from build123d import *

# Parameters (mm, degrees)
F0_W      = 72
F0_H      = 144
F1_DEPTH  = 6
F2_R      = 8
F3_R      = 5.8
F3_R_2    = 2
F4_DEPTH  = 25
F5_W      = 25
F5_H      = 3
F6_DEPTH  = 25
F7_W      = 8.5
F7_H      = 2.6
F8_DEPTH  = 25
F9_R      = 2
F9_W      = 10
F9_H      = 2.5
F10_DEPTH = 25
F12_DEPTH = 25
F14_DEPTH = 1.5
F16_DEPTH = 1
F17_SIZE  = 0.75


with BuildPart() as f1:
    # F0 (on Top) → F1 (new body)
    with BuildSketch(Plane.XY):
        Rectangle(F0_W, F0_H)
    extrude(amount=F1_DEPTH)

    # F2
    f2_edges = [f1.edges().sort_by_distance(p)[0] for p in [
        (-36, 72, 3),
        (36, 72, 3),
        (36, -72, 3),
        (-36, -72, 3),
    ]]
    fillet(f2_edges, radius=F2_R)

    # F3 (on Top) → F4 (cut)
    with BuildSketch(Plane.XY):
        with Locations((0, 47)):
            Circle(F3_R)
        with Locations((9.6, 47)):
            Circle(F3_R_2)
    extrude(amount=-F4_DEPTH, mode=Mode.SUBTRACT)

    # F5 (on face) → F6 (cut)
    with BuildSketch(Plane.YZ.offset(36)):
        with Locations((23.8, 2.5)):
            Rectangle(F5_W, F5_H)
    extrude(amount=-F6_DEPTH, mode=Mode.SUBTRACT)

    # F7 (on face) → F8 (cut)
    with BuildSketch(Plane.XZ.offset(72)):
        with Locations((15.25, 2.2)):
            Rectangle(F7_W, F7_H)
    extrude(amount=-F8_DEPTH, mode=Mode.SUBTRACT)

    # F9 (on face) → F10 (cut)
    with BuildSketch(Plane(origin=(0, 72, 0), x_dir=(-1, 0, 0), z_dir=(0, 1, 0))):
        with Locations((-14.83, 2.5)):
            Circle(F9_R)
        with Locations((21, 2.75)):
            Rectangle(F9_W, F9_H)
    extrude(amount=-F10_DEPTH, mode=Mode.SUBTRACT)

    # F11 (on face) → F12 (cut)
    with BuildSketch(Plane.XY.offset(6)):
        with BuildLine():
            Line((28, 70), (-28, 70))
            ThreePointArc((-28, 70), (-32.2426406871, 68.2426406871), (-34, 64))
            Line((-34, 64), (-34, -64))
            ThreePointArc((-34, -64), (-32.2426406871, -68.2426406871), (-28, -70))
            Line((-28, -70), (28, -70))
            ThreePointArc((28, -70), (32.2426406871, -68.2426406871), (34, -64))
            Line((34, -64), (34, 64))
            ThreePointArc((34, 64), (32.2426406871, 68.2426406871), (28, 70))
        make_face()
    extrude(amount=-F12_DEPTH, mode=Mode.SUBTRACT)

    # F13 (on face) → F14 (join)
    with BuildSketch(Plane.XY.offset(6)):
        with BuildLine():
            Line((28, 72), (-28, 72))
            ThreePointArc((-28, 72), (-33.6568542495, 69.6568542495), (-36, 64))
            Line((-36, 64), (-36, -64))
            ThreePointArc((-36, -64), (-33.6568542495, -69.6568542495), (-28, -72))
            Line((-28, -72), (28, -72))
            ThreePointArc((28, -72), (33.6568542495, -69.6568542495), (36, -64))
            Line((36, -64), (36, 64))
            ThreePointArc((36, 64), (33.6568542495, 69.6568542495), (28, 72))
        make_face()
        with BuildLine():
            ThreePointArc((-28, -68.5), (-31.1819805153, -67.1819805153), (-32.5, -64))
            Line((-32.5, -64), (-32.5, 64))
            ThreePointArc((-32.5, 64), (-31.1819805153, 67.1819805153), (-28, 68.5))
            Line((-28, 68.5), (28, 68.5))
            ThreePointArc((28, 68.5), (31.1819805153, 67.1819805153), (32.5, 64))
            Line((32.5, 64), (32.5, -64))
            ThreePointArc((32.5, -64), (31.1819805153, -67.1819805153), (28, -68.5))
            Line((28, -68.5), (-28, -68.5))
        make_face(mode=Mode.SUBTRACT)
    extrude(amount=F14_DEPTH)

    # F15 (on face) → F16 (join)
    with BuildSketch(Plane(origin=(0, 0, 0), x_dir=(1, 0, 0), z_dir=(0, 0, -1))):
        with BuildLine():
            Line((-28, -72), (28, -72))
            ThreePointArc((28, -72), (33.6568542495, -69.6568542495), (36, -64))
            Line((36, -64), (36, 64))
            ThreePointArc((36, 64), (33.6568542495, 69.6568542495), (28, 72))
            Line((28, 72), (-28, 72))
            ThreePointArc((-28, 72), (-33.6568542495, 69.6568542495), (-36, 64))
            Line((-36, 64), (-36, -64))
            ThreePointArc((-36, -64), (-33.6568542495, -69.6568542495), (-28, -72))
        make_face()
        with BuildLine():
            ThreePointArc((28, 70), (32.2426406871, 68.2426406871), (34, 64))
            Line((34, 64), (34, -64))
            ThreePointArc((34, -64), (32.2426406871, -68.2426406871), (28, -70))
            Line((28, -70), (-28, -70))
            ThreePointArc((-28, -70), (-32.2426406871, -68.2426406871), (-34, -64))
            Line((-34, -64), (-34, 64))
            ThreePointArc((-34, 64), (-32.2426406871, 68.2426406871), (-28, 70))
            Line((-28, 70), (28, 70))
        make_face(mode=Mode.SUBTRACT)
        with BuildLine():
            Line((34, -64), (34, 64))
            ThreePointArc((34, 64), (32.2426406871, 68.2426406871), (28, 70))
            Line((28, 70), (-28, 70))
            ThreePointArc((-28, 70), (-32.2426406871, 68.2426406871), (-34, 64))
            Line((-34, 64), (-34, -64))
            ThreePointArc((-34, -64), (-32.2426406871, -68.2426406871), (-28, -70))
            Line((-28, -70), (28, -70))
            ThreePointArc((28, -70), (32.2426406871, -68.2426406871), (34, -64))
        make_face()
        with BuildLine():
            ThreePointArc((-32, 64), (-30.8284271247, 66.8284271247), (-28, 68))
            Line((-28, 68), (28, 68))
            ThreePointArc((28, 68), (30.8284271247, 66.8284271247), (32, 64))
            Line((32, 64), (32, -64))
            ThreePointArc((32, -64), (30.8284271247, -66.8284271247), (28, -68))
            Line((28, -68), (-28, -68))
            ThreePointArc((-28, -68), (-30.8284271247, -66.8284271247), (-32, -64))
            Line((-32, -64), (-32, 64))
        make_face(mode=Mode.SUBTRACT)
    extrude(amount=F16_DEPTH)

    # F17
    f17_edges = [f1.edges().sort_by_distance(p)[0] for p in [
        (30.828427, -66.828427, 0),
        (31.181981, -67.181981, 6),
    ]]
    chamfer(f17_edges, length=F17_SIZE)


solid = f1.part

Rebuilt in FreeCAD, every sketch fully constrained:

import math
import FreeCAD as App
import Part
import Sketcher

V = App.Vector
Q = App.Units.Quantity


def edges_at(feature, points):
    """Names of the edges that pass closest to the given points."""
    edges = feature.Shape.Edges
    near = lambda p: min(range(len(edges)), key=lambda i: edges[i].distToShape(Part.Vertex(*p))[0])
    return sorted({f"Edge{near(p) + 1}" for p in points})


def add_polygon(sketch, points):
    """Adds a closed chain of lines whose ends are joined by coincident constraints."""
    first, n = sketch.GeometryCount, len(points)
    for a, b in zip(points, points[1:] + points[:1]):
        sketch.addGeometry(Part.LineSegment(App.Vector(*a, 0), App.Vector(*b, 0)), False)
    for i in range(n):
        sketch.addConstraint(Sketcher.Constraint("Coincident", first + i, 2, first + (i + 1) % n, 1))

doc = App.newDocument("Part")
body = doc.addObject("PartDesign::Body", "Body")

sketch1 = body.newObject("Sketcher::SketchObject", "Sketch")
sketch1.AttachmentSupport = (doc.getObject("XY_Plane"), [""])
sketch1.MapMode = "FlatFace"
add_polygon(sketch1, [(-36, 72), (-36, -72), (36, -72), (36, 72)])
sketch1.addConstraint(Sketcher.Constraint("Vertical", 0))
sketch1.addConstraint(Sketcher.Constraint("Horizontal", 1))
sketch1.addConstraint(Sketcher.Constraint("Vertical", 2))
sketch1.addConstraint(Sketcher.Constraint("Horizontal", 3))
sketch1.addConstraint(Sketcher.Constraint("Symmetric", 0, 2, 2, 2, -1, 1))
sketch1.addConstraint(Sketcher.Constraint("DistanceX", 1, 1, 1, 2, Q("72 mm")))
sketch1.addConstraint(Sketcher.Constraint("DistanceY", 0, 2, 0, 1, Q("144 mm")))
pad1 = body.newObject("PartDesign::Pad", "Pad")
pad1.Profile = sketch1
pad1.Length = 6
doc.recompute()

fillet = body.newObject("PartDesign::Fillet", "Fillet")
fillet.Base = (pad1, edges_at(pad1, [
    (-36, 72, 3),
    (36, 72, 3),
    (36, -72, 3),
    (-36, -72, 3),
]))
fillet.Radius = 8

sketch2 = body.newObject("Sketcher::SketchObject", "Sketch001")
sketch2.AttachmentSupport = (doc.getObject("XY_Plane"), [""])
sketch2.MapMode = "FlatFace"
sketch2.addGeometry(Part.Circle(V(0, 47, 0), V(0, 0, 1), 5.8), False)
sketch2.addGeometry(Part.Circle(V(9.6, 47, 0), V(0, 0, 1), 2), False)
sketch2.addConstraint(Sketcher.Constraint("PointOnObject", 0, 3, -2))
sketch2.addConstraint(Sketcher.Constraint("Horizontal", 0, 3, 1, 3))
sketch2.addConstraint(Sketcher.Constraint("Diameter", 1, Q("4 mm")))
sketch2.addConstraint(Sketcher.Constraint("Diameter", 0, Q("11.6 mm")))
sketch2.addConstraint(Sketcher.Constraint("DistanceY", -1, 1, 0, 3, Q("47 mm")))
sketch2.addConstraint(Sketcher.Constraint("DistanceX", -1, 1, 1, 3, Q("9.6 mm")))
pocket1 = body.newObject("PartDesign::Pocket", "Pocket")
pocket1.Profile = sketch2
pocket1.Length = 25

sketch3 = body.newObject("Sketcher::SketchObject", "Sketch002")
sketch3.AttachmentSupport = (doc.getObject("YZ_Plane"), [""])
sketch3.MapMode = "FlatFace"
sketch3.AttachmentOffset = App.Placement(V(0, 0, 36), App.Rotation())
add_polygon(sketch3, [(11.3, 4), (11.3, 1), (36.3, 1), (36.3, 4)])
sketch3.addConstraint(Sketcher.Constraint("Vertical", 0))
sketch3.addConstraint(Sketcher.Constraint("Horizontal", 1))
sketch3.addConstraint(Sketcher.Constraint("Vertical", 2))
sketch3.addConstraint(Sketcher.Constraint("Horizontal", 3))
sketch3.addConstraint(Sketcher.Constraint("DistanceX", 1, 1, 1, 2, Q("25 mm")))
sketch3.addConstraint(Sketcher.Constraint("DistanceY", 0, 2, 0, 1, Q("3 mm")))
sketch3.addConstraint(Sketcher.Constraint("DistanceY", -1, 1, 0, 2, Q("1 mm")))
sketch3.addConstraint(Sketcher.Constraint("DistanceX", -1, 1, 0, 2, Q("11.3 mm")))
pocket2 = body.newObject("PartDesign::Pocket", "Pocket001")
pocket2.Profile = sketch3
pocket2.Length = 25

sketch4 = body.newObject("Sketcher::SketchObject", "Sketch003")
sketch4.AttachmentSupport = (doc.getObject("XZ_Plane"), [""])
sketch4.MapMode = "FlatFace"
sketch4.AttachmentOffset = App.Placement(V(0, 0, 72), App.Rotation())
add_polygon(sketch4, [(11, 3.5), (11, 0.9), (19.5, 0.9), (19.5, 3.5)])
sketch4.addConstraint(Sketcher.Constraint("Vertical", 0))
sketch4.addConstraint(Sketcher.Constraint("Horizontal", 1))
sketch4.addConstraint(Sketcher.Constraint("Vertical", 2))
sketch4.addConstraint(Sketcher.Constraint("Horizontal", 3))
sketch4.addConstraint(Sketcher.Constraint("DistanceX", 1, 1, 1, 2, Q("8.5 mm")))
sketch4.addConstraint(Sketcher.Constraint("DistanceY", 0, 2, 0, 1, Q("2.6 mm")))
sketch4.addConstraint(Sketcher.Constraint("DistanceX", -1, 1, 0, 2, Q("11 mm")))
sketch4.addConstraint(Sketcher.Constraint("DistanceY", -1, 1, 0, 2, Q("0.9 mm")))
pocket3 = body.newObject("PartDesign::Pocket", "Pocket002")
pocket3.Profile = sketch4
pocket3.Length = 25

sketch5 = body.newObject("Sketcher::SketchObject", "Sketch004")
sketch5.AttachmentSupport = (doc.getObject("XZ_Plane"), [""])
sketch5.MapMode = "FlatFace"
sketch5.AttachmentOffset = App.Placement(V(0, 0, -72), App.Rotation())
sketch5.addGeometry(Part.Circle(V(14.8, 2.5, 0), V(0, 0, 1), 2), False)
add_polygon(sketch5, [(-16, 4), (-16, 1.5), (-26, 1.5), (-26, 4)])
sketch5.addConstraint(Sketcher.Constraint("Vertical", 1))
sketch5.addConstraint(Sketcher.Constraint("Horizontal", 2))
sketch5.addConstraint(Sketcher.Constraint("Vertical", 3))
sketch5.addConstraint(Sketcher.Constraint("Horizontal", 4))
sketch5.addConstraint(Sketcher.Constraint("Diameter", 0, Q("4 mm")))
sketch5.addConstraint(Sketcher.Constraint("DistanceX", 2, 2, 2, 1, Q("10 mm")))
sketch5.addConstraint(Sketcher.Constraint("DistanceY", 1, 2, 1, 1, Q("2.5 mm")))
sketch5.addConstraint(Sketcher.Constraint("DistanceX", 1, 2, -1, 1, Q("16 mm")))
sketch5.addConstraint(Sketcher.Constraint("DistanceY", -1, 1, 3, 2, Q("4 mm")))
sketch5.addConstraint(Sketcher.Constraint("DistanceY", 1, 2, 0, 3, Q("1 mm")))
sketch5.addConstraint(Sketcher.Constraint("DistanceX", -1, 1, 0, 3, Q("14.83 mm")))
pocket4 = body.newObject("PartDesign::Pocket", "Pocket003")
pocket4.Profile = sketch5
pocket4.Length = 25
pocket4.Reversed = True

sketch6 = body.newObject("Sketcher::SketchObject", "Sketch005")
sketch6.AttachmentSupport = (doc.getObject("XY_Plane"), [""])
sketch6.MapMode = "FlatFace"
sketch6.AttachmentOffset = App.Placement(V(0, 0, 6), App.Rotation())
sketch6.addGeometry(Part.LineSegment(V(28, 70, 0), V(-28, 70, 0)), False)
sketch6.addGeometry(Part.ArcOfCircle(Part.Circle(V(-28, 64, 0), V(0, 0, 1), 6), math.radians(90), math.radians(180)), False)
sketch6.addGeometry(Part.LineSegment(V(-34, 64, 0), V(-34, -64, 0)), False)
sketch6.addGeometry(Part.ArcOfCircle(Part.Circle(V(-28, -64, 0), V(0, 0, 1), 6), math.radians(180), math.radians(270)), False)
sketch6.addGeometry(Part.LineSegment(V(-28, -70, 0), V(28, -70, 0)), False)
sketch6.addGeometry(Part.ArcOfCircle(Part.Circle(V(28, -64, 0), V(0, 0, 1), 6), math.radians(-90), math.radians(0)), False)
sketch6.addGeometry(Part.LineSegment(V(34, -64, 0), V(34, 64, 0)), False)
sketch6.addGeometry(Part.ArcOfCircle(Part.Circle(V(28, 64, 0), V(0, 0, 1), 6), math.radians(0), math.radians(90)), False)
sketch6.addConstraint(Sketcher.Constraint("Tangent", 0, 2, 1, 1))
sketch6.addConstraint(Sketcher.Constraint("Tangent", 1, 2, 2, 1))
sketch6.addConstraint(Sketcher.Constraint("Tangent", 2, 2, 3, 1))
sketch6.addConstraint(Sketcher.Constraint("Tangent", 3, 2, 4, 1))
sketch6.addConstraint(Sketcher.Constraint("Tangent", 4, 2, 5, 1))
sketch6.addConstraint(Sketcher.Constraint("Tangent", 5, 2, 6, 1))
sketch6.addConstraint(Sketcher.Constraint("Tangent", 6, 2, 7, 1))
sketch6.addConstraint(Sketcher.Constraint("Tangent", 7, 2, 0, 1))
sketch6.addConstraint(Sketcher.Constraint("Horizontal", 0))
sketch6.addConstraint(Sketcher.Constraint("Vertical", 2))
sketch6.addConstraint(Sketcher.Constraint("Horizontal", 4))
sketch6.addConstraint(Sketcher.Constraint("Vertical", 6))
sketch6.addConstraint(Sketcher.Constraint("Equal", 1, 3))
sketch6.addConstraint(Sketcher.Constraint("Equal", 3, 5))
sketch6.addConstraint(Sketcher.Constraint("Equal", 5, 7))
sketch6.addConstraint(Sketcher.Constraint("Symmetric", 1, 3, 5, 3, -1, 1))
sketch6.addConstraint(Sketcher.Constraint("Radius", 1, Q("6 mm")))
sketch6.addConstraint(Sketcher.Constraint("DistanceX", 0, 2, 0, 1, Q("56 mm")))
sketch6.addConstraint(Sketcher.Constraint("DistanceY", 2, 2, 2, 1, Q("128 mm")))
pocket5 = body.newObject("PartDesign::Pocket", "Pocket004")
pocket5.Profile = sketch6
pocket5.Length = 25

sketch7 = body.newObject("Sketcher::SketchObject", "Sketch006")
sketch7.AttachmentSupport = (doc.getObject("XY_Plane"), [""])
sketch7.MapMode = "FlatFace"
sketch7.AttachmentOffset = App.Placement(V(0, 0, 6), App.Rotation())
sketch7.addGeometry(Part.LineSegment(V(28, 72, 0), V(-28, 72, 0)), False)
sketch7.addGeometry(Part.ArcOfCircle(Part.Circle(V(-28, 64, 0), V(0, 0, 1), 8), math.radians(90), math.radians(180)), False)
sketch7.addGeometry(Part.LineSegment(V(-36, 64, 0), V(-36, -64, 0)), False)
sketch7.addGeometry(Part.ArcOfCircle(Part.Circle(V(-28, -64, 0), V(0, 0, 1), 8), math.radians(180), math.radians(270)), False)
sketch7.addGeometry(Part.LineSegment(V(-28, -72, 0), V(28, -72, 0)), False)
sketch7.addGeometry(Part.ArcOfCircle(Part.Circle(V(28, -64, 0), V(0, 0, 1), 8), math.radians(-90), math.radians(0)), False)
sketch7.addGeometry(Part.LineSegment(V(36, -64, 0), V(36, 64, 0)), False)
sketch7.addGeometry(Part.ArcOfCircle(Part.Circle(V(28, 64, 0), V(0, 0, 1), 8), math.radians(0), math.radians(90)), False)
sketch7.addGeometry(Part.LineSegment(V(28, -68.5, 0), V(-28, -68.5, 0)), False)
sketch7.addGeometry(Part.ArcOfCircle(Part.Circle(V(-28, -64, 0), V(0, 0, 1), 4.5), math.radians(180), math.radians(270)), False)
sketch7.addGeometry(Part.LineSegment(V(-32.5, -64, 0), V(-32.5, 64, 0)), False)
sketch7.addGeometry(Part.ArcOfCircle(Part.Circle(V(-28, 64, 0), V(0, 0, 1), 4.5), math.radians(90), math.radians(180)), False)
sketch7.addGeometry(Part.LineSegment(V(-28, 68.5, 0), V(28, 68.5, 0)), False)
sketch7.addGeometry(Part.ArcOfCircle(Part.Circle(V(28, 64, 0), V(0, 0, 1), 4.5), math.radians(0), math.radians(90)), False)
sketch7.addGeometry(Part.LineSegment(V(32.5, 64, 0), V(32.5, -64, 0)), False)
sketch7.addGeometry(Part.ArcOfCircle(Part.Circle(V(28, -64, 0), V(0, 0, 1), 4.5), math.radians(-90), math.radians(0)), False)
sketch7.addConstraint(Sketcher.Constraint("Tangent", 0, 2, 1, 1))
sketch7.addConstraint(Sketcher.Constraint("Tangent", 1, 2, 2, 1))
sketch7.addConstraint(Sketcher.Constraint("Tangent", 2, 2, 3, 1))
sketch7.addConstraint(Sketcher.Constraint("Tangent", 3, 2, 4, 1))
sketch7.addConstraint(Sketcher.Constraint("Tangent", 4, 2, 5, 1))
sketch7.addConstraint(Sketcher.Constraint("Tangent", 5, 2, 6, 1))
sketch7.addConstraint(Sketcher.Constraint("Tangent", 6, 2, 7, 1))
sketch7.addConstraint(Sketcher.Constraint("Tangent", 7, 2, 0, 1))
sketch7.addConstraint(Sketcher.Constraint("Tangent", 8, 2, 9, 2))
sketch7.addConstraint(Sketcher.Constraint("Tangent", 9, 1, 10, 1))
sketch7.addConstraint(Sketcher.Constraint("Tangent", 10, 2, 11, 2))
sketch7.addConstraint(Sketcher.Constraint("Tangent", 11, 1, 12, 1))
sketch7.addConstraint(Sketcher.Constraint("Tangent", 12, 2, 13, 2))
sketch7.addConstraint(Sketcher.Constraint("Tangent", 13, 1, 14, 1))
sketch7.addConstraint(Sketcher.Constraint("Tangent", 14, 2, 15, 2))
sketch7.addConstraint(Sketcher.Constraint("Tangent", 15, 1, 8, 1))
sketch7.addConstraint(Sketcher.Constraint("Horizontal", 0))
sketch7.addConstraint(Sketcher.Constraint("Vertical", 2))
sketch7.addConstraint(Sketcher.Constraint("Horizontal", 4))
sketch7.addConstraint(Sketcher.Constraint("Vertical", 6))
sketch7.addConstraint(Sketcher.Constraint("Horizontal", 8))
sketch7.addConstraint(Sketcher.Constraint("Vertical", 10))
sketch7.addConstraint(Sketcher.Constraint("Horizontal", 12))
sketch7.addConstraint(Sketcher.Constraint("Vertical", 14))
sketch7.addConstraint(Sketcher.Constraint("Coincident", 9, 3, 3, 3))
sketch7.addConstraint(Sketcher.Constraint("Coincident", 11, 3, 1, 3))
sketch7.addConstraint(Sketcher.Constraint("Coincident", 13, 3, 7, 3))
sketch7.addConstraint(Sketcher.Constraint("Equal", 1, 3))
sketch7.addConstraint(Sketcher.Constraint("Equal", 3, 5))
sketch7.addConstraint(Sketcher.Constraint("Equal", 5, 7))
sketch7.addConstraint(Sketcher.Constraint("Equal", 13, 15))
sketch7.addConstraint(Sketcher.Constraint("Symmetric", 1, 3, 5, 3, -1, 1))
sketch7.addConstraint(Sketcher.Constraint("Radius", 1, Q("8 mm")))
sketch7.addConstraint(Sketcher.Constraint("Radius", 9, Q("4.5 mm")))
sketch7.addConstraint(Sketcher.Constraint("DistanceX", 0, 2, 0, 1, Q("56 mm")))
sketch7.addConstraint(Sketcher.Constraint("DistanceY", 2, 2, 2, 1, Q("128 mm")))
pad2 = body.newObject("PartDesign::Pad", "Pad001")
pad2.Profile = sketch7
pad2.Length = 1.5

sketch8 = body.newObject("Sketcher::SketchObject", "Sketch007")
sketch8.AttachmentSupport = (doc.getObject("XY_Plane"), [""])
sketch8.MapMode = "FlatFace"
sketch8.addGeometry(Part.LineSegment(V(-28, 72, 0), V(28, 72, 0)), False)
sketch8.addGeometry(Part.ArcOfCircle(Part.Circle(V(28, 64, 0), V(0, 0, 1), 8), math.radians(0), math.radians(90)), False)
sketch8.addGeometry(Part.LineSegment(V(36, 64, 0), V(36, -64, 0)), False)
sketch8.addGeometry(Part.ArcOfCircle(Part.Circle(V(28, -64, 0), V(0, 0, 1), 8), math.radians(-90), math.radians(0)), False)
sketch8.addGeometry(Part.LineSegment(V(28, -72, 0), V(-28, -72, 0)), False)
sketch8.addGeometry(Part.ArcOfCircle(Part.Circle(V(-28, -64, 0), V(0, 0, 1), 8), math.radians(180), math.radians(270)), False)
sketch8.addGeometry(Part.LineSegment(V(-36, -64, 0), V(-36, 64, 0)), False)
sketch8.addGeometry(Part.ArcOfCircle(Part.Circle(V(-28, 64, 0), V(0, 0, 1), 8), math.radians(90), math.radians(180)), False)
sketch8.addGeometry(Part.LineSegment(V(-32, 64, 0), V(-32, -64, 0)), False)
sketch8.addGeometry(Part.ArcOfCircle(Part.Circle(V(-28, -64, 0), V(0, 0, 1), 4), math.radians(180), math.radians(270)), False)
sketch8.addGeometry(Part.LineSegment(V(-28, -68, 0), V(28, -68, 0)), False)
sketch8.addGeometry(Part.ArcOfCircle(Part.Circle(V(28, -64, 0), V(0, 0, 1), 4), math.radians(-90), math.radians(0)), False)
sketch8.addGeometry(Part.LineSegment(V(32, -64, 0), V(32, 64, 0)), False)
sketch8.addGeometry(Part.ArcOfCircle(Part.Circle(V(28, 64, 0), V(0, 0, 1), 4), math.radians(0), math.radians(90)), False)
sketch8.addGeometry(Part.LineSegment(V(28, 68, 0), V(-28, 68, 0)), False)
sketch8.addGeometry(Part.ArcOfCircle(Part.Circle(V(-28, 64, 0), V(0, 0, 1), 4), math.radians(90), math.radians(180)), False)
sketch8.addConstraint(Sketcher.Constraint("Tangent", 0, 2, 1, 2))
sketch8.addConstraint(Sketcher.Constraint("Tangent", 1, 1, 2, 1))
sketch8.addConstraint(Sketcher.Constraint("Tangent", 2, 2, 3, 2))
sketch8.addConstraint(Sketcher.Constraint("Tangent", 3, 1, 4, 1))
sketch8.addConstraint(Sketcher.Constraint("Tangent", 4, 2, 5, 2))
sketch8.addConstraint(Sketcher.Constraint("Tangent", 5, 1, 6, 1))
sketch8.addConstraint(Sketcher.Constraint("Tangent", 6, 2, 7, 2))
sketch8.addConstraint(Sketcher.Constraint("Tangent", 7, 1, 0, 1))
sketch8.addConstraint(Sketcher.Constraint("Tangent", 8, 2, 9, 1))
sketch8.addConstraint(Sketcher.Constraint("Tangent", 9, 2, 10, 1))
sketch8.addConstraint(Sketcher.Constraint("Tangent", 10, 2, 11, 1))
sketch8.addConstraint(Sketcher.Constraint("Tangent", 11, 2, 12, 1))
sketch8.addConstraint(Sketcher.Constraint("Tangent", 12, 2, 13, 1))
sketch8.addConstraint(Sketcher.Constraint("Tangent", 13, 2, 14, 1))
sketch8.addConstraint(Sketcher.Constraint("Tangent", 14, 2, 15, 1))
sketch8.addConstraint(Sketcher.Constraint("Tangent", 15, 2, 8, 1))
sketch8.addConstraint(Sketcher.Constraint("Horizontal", 0))
sketch8.addConstraint(Sketcher.Constraint("Vertical", 2))
sketch8.addConstraint(Sketcher.Constraint("Horizontal", 4))
sketch8.addConstraint(Sketcher.Constraint("Vertical", 6))
sketch8.addConstraint(Sketcher.Constraint("Vertical", 8))
sketch8.addConstraint(Sketcher.Constraint("Horizontal", 10))
sketch8.addConstraint(Sketcher.Constraint("Vertical", 12))
sketch8.addConstraint(Sketcher.Constraint("Horizontal", 14))
sketch8.addConstraint(Sketcher.Constraint("Coincident", 9, 3, 5, 3))
sketch8.addConstraint(Sketcher.Constraint("Coincident", 11, 3, 3, 3))
sketch8.addConstraint(Sketcher.Constraint("Coincident", 13, 3, 1, 3))
sketch8.addConstraint(Sketcher.Constraint("Equal", 1, 3))
sketch8.addConstraint(Sketcher.Constraint("Equal", 3, 5))
sketch8.addConstraint(Sketcher.Constraint("Equal", 5, 7))
sketch8.addConstraint(Sketcher.Constraint("Equal", 13, 15))
sketch8.addConstraint(Sketcher.Constraint("Symmetric", 1, 3, 5, 3, -1, 1))
sketch8.addConstraint(Sketcher.Constraint("Radius", 1, Q("8 mm")))
sketch8.addConstraint(Sketcher.Constraint("Radius", 9, Q("4 mm")))
sketch8.addConstraint(Sketcher.Constraint("DistanceX", 0, 1, 0, 2, Q("56 mm")))
sketch8.addConstraint(Sketcher.Constraint("DistanceY", 2, 2, 2, 1, Q("128 mm")))
pad3 = body.newObject("PartDesign::Pad", "Pad002")
pad3.Profile = sketch8
pad3.Length = 1
pad3.Reversed = True
doc.recompute()

chamfer = body.newObject("PartDesign::Chamfer", "Chamfer")
chamfer.Base = (pad3, edges_at(pad3, [(30.828, -66.828, 0), (31.182, -67.182, 6)]))
chamfer.Size = 0.75

doc.recompute()
